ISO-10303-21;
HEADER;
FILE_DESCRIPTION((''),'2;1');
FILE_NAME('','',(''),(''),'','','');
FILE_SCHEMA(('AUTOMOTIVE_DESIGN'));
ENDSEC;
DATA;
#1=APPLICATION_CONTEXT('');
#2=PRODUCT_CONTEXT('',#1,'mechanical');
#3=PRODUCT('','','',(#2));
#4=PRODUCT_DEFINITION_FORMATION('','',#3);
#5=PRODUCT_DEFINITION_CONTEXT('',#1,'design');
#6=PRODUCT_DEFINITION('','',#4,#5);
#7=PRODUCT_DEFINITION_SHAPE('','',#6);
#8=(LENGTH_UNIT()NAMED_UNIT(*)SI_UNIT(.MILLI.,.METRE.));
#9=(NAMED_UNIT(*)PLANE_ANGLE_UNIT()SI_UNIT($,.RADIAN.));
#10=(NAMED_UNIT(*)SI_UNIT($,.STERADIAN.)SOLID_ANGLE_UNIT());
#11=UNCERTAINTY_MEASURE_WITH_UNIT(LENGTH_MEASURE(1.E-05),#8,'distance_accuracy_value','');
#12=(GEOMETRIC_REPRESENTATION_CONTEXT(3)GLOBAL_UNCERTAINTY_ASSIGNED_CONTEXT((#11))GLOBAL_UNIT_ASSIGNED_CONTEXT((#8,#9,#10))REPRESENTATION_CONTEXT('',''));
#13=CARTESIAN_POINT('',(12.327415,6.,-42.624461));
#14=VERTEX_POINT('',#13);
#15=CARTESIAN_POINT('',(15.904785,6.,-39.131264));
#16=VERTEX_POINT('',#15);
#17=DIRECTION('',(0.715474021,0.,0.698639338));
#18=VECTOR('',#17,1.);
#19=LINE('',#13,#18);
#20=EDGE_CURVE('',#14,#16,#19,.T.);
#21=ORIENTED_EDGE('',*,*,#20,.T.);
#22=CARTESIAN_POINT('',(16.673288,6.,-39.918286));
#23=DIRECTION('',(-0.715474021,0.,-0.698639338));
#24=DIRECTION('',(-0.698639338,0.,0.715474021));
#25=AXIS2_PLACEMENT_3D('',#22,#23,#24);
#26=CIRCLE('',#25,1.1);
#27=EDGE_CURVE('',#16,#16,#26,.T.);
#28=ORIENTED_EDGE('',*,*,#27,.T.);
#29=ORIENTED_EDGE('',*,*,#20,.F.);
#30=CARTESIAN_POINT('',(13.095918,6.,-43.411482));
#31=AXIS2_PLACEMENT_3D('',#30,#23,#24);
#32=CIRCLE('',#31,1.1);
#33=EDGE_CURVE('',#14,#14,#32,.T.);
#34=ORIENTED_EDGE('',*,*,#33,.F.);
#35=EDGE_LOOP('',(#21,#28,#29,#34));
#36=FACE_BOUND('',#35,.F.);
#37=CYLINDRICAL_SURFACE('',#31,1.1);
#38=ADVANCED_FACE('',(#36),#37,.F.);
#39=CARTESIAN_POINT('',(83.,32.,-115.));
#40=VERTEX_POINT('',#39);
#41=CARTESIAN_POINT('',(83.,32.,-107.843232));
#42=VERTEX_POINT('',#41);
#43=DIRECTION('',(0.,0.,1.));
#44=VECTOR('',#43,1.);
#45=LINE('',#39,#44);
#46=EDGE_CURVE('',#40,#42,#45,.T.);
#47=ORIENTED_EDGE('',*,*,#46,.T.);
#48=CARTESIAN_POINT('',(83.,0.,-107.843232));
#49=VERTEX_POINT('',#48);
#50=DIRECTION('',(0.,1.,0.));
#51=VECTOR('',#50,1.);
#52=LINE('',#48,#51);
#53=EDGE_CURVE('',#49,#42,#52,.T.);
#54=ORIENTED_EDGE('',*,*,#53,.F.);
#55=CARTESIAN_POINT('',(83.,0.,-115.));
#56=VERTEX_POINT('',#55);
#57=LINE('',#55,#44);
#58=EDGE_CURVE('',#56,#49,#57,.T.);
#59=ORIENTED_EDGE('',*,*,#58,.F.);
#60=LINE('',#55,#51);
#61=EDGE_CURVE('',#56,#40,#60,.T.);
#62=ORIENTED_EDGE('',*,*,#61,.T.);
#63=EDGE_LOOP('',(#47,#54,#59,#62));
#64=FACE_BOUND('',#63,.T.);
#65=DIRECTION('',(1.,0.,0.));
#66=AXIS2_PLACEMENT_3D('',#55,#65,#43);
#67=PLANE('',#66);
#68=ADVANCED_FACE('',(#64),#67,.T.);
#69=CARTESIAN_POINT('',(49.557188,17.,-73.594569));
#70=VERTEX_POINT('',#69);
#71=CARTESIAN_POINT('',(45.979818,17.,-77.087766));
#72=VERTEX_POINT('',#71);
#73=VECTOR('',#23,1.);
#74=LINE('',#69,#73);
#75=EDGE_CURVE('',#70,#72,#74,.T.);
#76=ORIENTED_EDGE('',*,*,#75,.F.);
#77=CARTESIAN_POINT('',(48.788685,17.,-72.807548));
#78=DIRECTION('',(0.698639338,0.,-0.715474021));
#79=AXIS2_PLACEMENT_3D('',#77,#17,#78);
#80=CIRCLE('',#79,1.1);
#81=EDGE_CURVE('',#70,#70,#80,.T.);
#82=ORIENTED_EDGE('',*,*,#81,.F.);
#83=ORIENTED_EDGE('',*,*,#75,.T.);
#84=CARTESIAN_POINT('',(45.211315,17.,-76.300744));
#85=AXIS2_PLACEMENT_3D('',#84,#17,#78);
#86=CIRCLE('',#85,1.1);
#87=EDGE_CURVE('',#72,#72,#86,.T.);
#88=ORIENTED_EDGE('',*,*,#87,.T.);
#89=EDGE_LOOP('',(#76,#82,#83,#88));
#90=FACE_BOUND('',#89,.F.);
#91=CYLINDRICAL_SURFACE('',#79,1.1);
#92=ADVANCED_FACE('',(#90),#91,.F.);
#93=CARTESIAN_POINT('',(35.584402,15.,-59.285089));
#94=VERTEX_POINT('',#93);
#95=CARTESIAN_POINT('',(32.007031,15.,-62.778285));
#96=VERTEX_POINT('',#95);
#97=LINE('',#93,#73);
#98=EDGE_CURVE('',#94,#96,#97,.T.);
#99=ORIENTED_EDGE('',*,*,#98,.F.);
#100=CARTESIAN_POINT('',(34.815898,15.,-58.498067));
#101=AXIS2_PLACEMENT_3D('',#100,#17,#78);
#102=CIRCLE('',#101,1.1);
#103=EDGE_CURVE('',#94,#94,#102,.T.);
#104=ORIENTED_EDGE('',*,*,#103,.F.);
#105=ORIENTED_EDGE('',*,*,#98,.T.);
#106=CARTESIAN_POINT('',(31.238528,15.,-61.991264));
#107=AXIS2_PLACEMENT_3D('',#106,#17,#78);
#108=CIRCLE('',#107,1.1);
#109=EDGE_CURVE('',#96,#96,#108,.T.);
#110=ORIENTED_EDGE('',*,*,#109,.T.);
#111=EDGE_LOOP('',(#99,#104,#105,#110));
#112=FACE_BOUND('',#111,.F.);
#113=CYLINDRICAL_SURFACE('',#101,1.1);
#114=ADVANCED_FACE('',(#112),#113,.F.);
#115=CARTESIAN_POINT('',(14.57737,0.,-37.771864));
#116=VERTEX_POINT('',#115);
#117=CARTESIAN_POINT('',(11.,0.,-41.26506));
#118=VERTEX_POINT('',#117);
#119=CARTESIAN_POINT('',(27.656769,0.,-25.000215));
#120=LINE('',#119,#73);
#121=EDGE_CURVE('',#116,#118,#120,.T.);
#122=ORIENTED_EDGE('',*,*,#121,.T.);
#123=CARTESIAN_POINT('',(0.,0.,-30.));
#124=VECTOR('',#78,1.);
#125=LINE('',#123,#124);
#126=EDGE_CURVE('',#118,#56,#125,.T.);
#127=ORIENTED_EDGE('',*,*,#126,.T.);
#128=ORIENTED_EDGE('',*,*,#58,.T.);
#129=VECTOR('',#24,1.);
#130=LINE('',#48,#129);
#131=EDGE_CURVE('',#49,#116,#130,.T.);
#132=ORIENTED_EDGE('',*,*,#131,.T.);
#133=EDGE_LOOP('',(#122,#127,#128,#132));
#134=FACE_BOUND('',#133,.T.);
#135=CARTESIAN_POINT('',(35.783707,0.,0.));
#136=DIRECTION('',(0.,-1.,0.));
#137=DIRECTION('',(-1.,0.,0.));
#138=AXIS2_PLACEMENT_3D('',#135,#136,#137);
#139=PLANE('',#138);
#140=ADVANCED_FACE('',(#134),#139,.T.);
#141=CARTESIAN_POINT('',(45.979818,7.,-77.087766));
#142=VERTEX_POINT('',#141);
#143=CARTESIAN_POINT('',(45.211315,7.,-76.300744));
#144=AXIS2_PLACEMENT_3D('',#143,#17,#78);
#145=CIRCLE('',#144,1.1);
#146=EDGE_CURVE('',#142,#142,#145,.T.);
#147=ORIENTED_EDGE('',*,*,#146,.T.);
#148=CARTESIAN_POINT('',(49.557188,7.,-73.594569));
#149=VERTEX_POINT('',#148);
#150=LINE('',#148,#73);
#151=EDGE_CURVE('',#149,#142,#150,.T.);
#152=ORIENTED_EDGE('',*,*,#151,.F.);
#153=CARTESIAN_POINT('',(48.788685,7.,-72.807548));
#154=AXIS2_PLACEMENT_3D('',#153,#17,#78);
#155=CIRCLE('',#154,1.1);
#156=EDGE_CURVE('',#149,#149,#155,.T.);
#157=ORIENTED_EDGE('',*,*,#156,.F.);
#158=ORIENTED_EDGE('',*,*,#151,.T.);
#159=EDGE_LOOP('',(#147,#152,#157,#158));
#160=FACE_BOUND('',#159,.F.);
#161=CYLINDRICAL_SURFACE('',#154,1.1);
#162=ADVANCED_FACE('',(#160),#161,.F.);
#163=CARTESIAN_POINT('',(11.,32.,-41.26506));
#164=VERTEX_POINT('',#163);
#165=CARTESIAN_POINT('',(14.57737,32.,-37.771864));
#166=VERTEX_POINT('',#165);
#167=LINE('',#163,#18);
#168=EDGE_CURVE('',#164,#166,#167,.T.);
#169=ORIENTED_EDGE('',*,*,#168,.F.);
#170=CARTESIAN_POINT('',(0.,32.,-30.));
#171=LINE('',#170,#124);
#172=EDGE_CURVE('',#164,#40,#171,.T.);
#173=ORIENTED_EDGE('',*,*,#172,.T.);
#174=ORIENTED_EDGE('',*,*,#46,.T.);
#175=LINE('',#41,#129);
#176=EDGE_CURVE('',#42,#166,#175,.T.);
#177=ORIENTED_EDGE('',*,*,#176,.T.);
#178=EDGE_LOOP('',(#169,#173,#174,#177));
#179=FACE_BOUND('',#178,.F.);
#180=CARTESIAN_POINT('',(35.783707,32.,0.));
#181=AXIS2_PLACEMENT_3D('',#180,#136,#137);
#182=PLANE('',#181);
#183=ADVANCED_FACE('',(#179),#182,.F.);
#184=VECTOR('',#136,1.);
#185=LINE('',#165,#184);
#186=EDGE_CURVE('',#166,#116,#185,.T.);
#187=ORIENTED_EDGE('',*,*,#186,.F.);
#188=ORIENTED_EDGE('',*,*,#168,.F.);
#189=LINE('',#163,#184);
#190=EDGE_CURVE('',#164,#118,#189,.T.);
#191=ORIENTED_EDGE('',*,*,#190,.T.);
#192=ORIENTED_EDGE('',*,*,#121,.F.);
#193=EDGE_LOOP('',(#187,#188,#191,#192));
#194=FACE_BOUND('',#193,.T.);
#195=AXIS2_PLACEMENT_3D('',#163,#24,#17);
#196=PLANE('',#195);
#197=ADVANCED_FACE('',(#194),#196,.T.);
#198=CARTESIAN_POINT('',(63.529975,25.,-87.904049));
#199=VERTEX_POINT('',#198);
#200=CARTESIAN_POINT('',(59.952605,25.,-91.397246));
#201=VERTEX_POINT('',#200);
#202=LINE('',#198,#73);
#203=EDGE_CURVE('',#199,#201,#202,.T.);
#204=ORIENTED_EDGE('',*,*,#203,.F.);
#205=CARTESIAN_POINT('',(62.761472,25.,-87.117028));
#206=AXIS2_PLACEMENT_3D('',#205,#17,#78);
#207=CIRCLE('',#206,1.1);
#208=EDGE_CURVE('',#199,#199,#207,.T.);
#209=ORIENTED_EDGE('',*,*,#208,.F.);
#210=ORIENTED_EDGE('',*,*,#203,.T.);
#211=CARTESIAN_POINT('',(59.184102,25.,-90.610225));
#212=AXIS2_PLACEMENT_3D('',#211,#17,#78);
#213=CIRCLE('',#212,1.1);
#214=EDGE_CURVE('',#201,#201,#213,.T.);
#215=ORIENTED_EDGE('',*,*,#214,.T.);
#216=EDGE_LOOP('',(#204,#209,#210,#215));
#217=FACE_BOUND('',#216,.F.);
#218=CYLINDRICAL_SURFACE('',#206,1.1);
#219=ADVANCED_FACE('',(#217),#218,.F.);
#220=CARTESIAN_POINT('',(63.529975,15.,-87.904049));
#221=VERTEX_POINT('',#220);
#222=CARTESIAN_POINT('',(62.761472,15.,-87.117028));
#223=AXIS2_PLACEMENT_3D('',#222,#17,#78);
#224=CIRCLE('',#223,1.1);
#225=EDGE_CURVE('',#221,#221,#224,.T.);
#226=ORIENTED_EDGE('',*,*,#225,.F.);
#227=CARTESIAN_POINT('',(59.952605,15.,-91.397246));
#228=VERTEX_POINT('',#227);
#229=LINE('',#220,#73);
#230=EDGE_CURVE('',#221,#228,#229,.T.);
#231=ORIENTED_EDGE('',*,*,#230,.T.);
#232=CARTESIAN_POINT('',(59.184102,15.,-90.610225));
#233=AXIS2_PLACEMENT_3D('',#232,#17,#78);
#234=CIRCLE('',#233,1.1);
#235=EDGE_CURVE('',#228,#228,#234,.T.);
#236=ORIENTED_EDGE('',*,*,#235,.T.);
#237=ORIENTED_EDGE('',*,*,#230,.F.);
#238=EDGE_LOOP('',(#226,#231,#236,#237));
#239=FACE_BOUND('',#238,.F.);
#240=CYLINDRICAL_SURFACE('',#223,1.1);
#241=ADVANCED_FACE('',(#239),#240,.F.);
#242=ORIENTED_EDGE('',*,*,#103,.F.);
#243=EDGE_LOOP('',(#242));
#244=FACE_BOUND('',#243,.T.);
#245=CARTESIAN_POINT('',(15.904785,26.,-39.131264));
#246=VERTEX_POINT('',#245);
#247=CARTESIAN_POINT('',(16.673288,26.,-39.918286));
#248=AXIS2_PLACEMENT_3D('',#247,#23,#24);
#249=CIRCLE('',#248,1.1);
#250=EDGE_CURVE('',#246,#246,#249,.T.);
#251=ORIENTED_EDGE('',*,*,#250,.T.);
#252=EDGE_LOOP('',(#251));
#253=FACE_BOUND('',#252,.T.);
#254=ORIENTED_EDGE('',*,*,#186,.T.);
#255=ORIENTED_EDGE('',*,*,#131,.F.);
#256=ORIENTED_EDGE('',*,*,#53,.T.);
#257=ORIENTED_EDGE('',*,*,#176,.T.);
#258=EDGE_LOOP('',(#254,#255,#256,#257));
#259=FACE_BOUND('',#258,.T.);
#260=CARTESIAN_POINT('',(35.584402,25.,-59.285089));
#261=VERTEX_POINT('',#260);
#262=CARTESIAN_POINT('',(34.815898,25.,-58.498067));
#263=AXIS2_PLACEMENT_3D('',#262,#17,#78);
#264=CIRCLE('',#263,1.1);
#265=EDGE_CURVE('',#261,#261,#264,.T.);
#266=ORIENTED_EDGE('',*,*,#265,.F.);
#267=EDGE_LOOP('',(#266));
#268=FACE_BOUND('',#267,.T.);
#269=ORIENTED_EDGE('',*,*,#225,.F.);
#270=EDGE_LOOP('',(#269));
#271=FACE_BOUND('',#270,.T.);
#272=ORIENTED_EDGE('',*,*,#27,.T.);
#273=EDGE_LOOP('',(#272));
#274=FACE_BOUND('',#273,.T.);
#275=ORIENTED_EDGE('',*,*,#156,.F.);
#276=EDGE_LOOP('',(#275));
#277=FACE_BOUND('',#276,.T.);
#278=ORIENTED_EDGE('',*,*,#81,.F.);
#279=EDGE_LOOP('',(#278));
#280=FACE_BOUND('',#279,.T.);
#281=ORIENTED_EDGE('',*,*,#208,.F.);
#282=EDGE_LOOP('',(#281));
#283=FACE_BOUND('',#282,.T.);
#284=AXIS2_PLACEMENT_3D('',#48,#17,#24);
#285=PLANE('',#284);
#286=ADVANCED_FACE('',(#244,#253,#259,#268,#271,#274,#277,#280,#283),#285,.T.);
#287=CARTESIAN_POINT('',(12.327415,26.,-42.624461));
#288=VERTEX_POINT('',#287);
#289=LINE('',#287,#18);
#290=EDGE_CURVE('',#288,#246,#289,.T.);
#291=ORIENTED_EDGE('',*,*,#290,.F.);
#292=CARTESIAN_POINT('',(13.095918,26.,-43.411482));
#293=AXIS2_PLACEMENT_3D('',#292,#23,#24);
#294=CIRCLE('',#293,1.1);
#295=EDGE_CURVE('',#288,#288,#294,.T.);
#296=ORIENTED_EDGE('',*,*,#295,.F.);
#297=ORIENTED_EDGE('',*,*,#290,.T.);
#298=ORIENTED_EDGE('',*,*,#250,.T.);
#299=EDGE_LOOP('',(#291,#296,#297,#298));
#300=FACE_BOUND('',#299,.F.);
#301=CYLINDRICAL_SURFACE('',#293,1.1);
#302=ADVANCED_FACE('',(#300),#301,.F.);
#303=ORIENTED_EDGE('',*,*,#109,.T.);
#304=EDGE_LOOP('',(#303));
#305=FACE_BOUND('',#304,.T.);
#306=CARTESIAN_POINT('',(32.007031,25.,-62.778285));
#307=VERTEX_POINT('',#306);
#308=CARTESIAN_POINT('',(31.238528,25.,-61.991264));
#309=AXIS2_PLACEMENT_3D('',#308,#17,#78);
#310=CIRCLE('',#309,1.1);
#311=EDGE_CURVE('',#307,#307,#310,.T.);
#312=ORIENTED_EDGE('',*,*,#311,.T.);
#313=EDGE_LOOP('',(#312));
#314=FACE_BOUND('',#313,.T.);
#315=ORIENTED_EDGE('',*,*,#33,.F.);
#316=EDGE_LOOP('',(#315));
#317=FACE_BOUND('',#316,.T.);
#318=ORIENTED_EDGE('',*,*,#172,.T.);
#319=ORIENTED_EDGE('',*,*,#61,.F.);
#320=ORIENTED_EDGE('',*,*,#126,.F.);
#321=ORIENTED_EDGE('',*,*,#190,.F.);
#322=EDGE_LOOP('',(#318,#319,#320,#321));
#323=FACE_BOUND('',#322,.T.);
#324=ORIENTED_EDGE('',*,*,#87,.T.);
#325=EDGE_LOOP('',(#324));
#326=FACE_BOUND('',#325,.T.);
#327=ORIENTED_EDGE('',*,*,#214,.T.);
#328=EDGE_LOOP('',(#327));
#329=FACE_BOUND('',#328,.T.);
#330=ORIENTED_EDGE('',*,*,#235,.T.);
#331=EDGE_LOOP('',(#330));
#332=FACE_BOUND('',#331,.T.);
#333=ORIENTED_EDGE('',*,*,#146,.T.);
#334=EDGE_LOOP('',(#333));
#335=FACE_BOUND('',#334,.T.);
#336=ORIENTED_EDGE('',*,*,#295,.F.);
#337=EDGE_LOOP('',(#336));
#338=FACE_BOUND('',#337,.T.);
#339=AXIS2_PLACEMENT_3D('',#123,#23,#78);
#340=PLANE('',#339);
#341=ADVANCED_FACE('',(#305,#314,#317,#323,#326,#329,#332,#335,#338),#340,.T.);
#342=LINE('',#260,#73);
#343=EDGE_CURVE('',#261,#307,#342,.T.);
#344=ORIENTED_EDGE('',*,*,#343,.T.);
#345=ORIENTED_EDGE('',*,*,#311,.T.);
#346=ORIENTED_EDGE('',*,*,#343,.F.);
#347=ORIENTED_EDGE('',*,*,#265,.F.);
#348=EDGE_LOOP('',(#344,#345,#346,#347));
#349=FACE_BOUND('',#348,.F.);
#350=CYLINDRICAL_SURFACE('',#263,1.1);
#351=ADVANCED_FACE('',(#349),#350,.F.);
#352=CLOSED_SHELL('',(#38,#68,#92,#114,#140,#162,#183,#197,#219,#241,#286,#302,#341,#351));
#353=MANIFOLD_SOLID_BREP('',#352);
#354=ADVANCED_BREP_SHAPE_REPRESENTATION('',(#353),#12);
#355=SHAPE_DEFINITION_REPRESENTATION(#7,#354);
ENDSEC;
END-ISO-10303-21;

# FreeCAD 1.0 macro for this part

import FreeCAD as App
import Part
import Sketcher


def edges_at(feature, points):
    """Names of the edges that pass closest to the given points."""
    edges = feature.Shape.Edges
    near = lambda p: min(range(len(edges)), key=lambda i: edges[i].distToShape(Part.Vertex(*p))[0])
    return sorted({f"Edge{near(p) + 1}" for p in points})


def add_polygon(sketch, points):
    """Adds a closed chain of lines whose ends are joined by coincident constraints."""
    first, n = sketch.GeometryCount, len(points)
    for a, b in zip(points, points[1:] + points[:1]):
        sketch.addGeometry(Part.LineSegment(App.Vector(*a, 0), App.Vector(*b, 0)), False)
    for i in range(n):
        sketch.addConstraint(Sketcher.Constraint("Coincident", first + i, 2, first + (i + 1) % n, 1))

doc = App.newDocument("Part")
body = doc.addObject("PartDesign::Body", "Body")

# Sketch on XZ plane
sketch1 = body.newObject("Sketcher::SketchObject", "Sketch")
sketch1.AttachmentSupport = (doc.getObject("XZ_Plane"), [""])
sketch1.MapMode = "FlatFace"
add_polygon(sketch1, [(0, -30), (0, 30), (83, 115), (83, 108), (5, 28), (5, -28), (83, -108), (83, -115)])  # lines 0-7
sketch1.addConstraint([
    Sketcher.Constraint("Vertical", 0),
    Sketcher.Constraint("Vertical", 2),
    Sketcher.Constraint("Vertical", 4),
    Sketcher.Constraint("Vertical", 6),
    Sketcher.Constraint("Symmetric", 0, 2, 7, 2, -1, 1),
    Sketcher.Constraint("Symmetric", 2, 2, 5, 2, -1),
    Sketcher.Constraint("Parallel", 1, 3),
    Sketcher.Constraint("Parallel", 5, 7),
    Sketcher.Constraint("Equal", 2, 6),
    Sketcher.Constraint("DistanceY", 0, 1, 0, 2, 60.0),
    Sketcher.Constraint("DistanceX", -1, 1, 1, 2, 83.0),
    Sketcher.Constraint("DistanceY", -1, 1, 1, 2, 115.0),
    Sketcher.Constraint("DistanceX", -1, 1, 3, 2, 5.0),
    Sketcher.Constraint("DistanceY", 2, 2, 2, 1, 7.156768),
])
pad1 = body.newObject("PartDesign::Pad", "Pad")
pad1.Profile = sketch1
pad1.Length = 32
pad1.Reversed = True
doc.recompute()

fillet = body.newObject("PartDesign::Fillet", "Fillet")
fillet.Base = (pad1, edges_at(pad1, [(0, 16, 30), (0, 16, -30)]))
fillet.Radius = 10

# Sketch on XZ plane
sketch2 = body.newObject("Sketcher::SketchObject", "Sketch001")
sketch2.AttachmentSupport = (doc.getObject("XZ_Plane"), [""])
sketch2.MapMode = "FlatFace"
sketch2.AttachmentOffset = App.Placement(App.Vector(0, 0, -32), App.Rotation())
add_polygon(sketch2, [(-49, -125), (-49, 133), (121, 133), (121, -125)])  # lines 0-3
add_polygon(sketch2, [(84, -116), (88, -113), (15, -38), (11, -41)])  # lines 4-7
sketch2.addConstraint([
    Sketcher.Constraint("Vertical", 0),
    Sketcher.Constraint("Horizontal", 1),
    Sketcher.Constraint("Vertical", 2),
    Sketcher.Constraint("Horizontal", 3),
    Sketcher.Constraint("Perpendicular", 4, 5),
    Sketcher.Constraint("Perpendicular", 5, 6),
    Sketcher.Constraint("Perpendicular", 6, 7),
    Sketcher.Constraint("Distance", 4, 5.0),
    Sketcher.Constraint("DistanceX", -1, 1, 6, 2, 11.0),
    Sketcher.Constraint("DistanceX", -1, 1, 7, 2, 84.0),
    Sketcher.Constraint("DistanceX", 1, 1, 1, 2, 170.11041),
    Sketcher.Constraint("DistanceY", 4, 2, -1, 1, 112.5309),
    Sketcher.Constraint("Distance", 5, 104.48882),
    Sketcher.Constraint("DistanceY", 0, 1, 0, 2, 258.008077),
    Sketcher.Constraint("DistanceY", -1, 1, 0, 2, 133.05101),
    Sketcher.Constraint("DistanceX", 0, 2, -1, 1, 49.419985),
])
pocket1 = body.newObject("PartDesign::Pocket", "Pocket")
pocket1.Profile = sketch2
pocket1.Type = "ThroughAll"
pocket1.Reversed = True

# Sketch on an angled plane
sketch3 = body.newObject("Sketcher::SketchObject", "Sketch002")
sketch3.Placement = App.Placement(App.Vector(-14.995749, 0, -14.642908), App.Rotation(App.Vector(-0.698639338, 0, 0.715474021), App.Vector(0, 0.999999999, 0), App.Vector(-0.715474021, 0, -0.698639338), "ZXY"))
sketch3.addGeometry([
    Part.Circle(App.Vector(-40.2, 26, 0), App.Vector(0, 0, 1), 1.1),
    Part.Circle(App.Vector(-40.2, 6, 0), App.Vector(0, 0, 1), 1.1),
], False)
sketch3.addConstraint([
    Sketcher.Constraint("Equal", 0, 1),
    Sketcher.Constraint("Vertical", 0, 3, 1, 3),
    Sketcher.Constraint("Diameter", 0, 2.2),
    Sketcher.Constraint("DistanceY", -1, 1, 0, 3, 26.0),
    Sketcher.Constraint("DistanceY", -1, 1, 1, 3, 6.0),
    Sketcher.Constraint("DistanceX", 0, 3, -1, 1, 40.209111),
])
pocket2 = body.newObject("PartDesign::Pocket", "Pocket001")
pocket2.Profile = sketch3
pocket2.Type = "ThroughAll"

# Sketch on an angled plane
sketch4 = body.newObject("Sketcher::SketchObject", "Sketch003")
sketch4.Placement = App.Placement(App.Vector(-11.418379, 0, -11.149711), App.Rotation(App.Vector(0.698639338, 0, -0.715474021), App.Vector(0, 0.999999999, 0), App.Vector(0.715474021, 0, 0.698639338), "ZXY"))
sketch4.addGeometry([
    Part.Circle(App.Vector(66.2, 15, 0), App.Vector(0, 0, 1), 1.1),  # 0
    Part.Circle(App.Vector(66.2, 25, 0), App.Vector(0, 0, 1), 1.1),  # 1
    Part.Circle(App.Vector(106.2, 25, 0), App.Vector(0, 0, 1), 1.1),  # 2
    Part.Circle(App.Vector(106.2, 15, 0), App.Vector(0, 0, 1), 1.1),  # 3
    Part.Circle(App.Vector(86.2, 17, 0), App.Vector(0, 0, 1), 1.1),  # 4
    Part.Circle(App.Vector(86.2, 7, 0), App.Vector(0, 0, 1), 1.1),  # 5
], False)
sketch4.addConstraint([
    Sketcher.Constraint("Equal", 0, 1),
    Sketcher.Constraint("Equal", 1, 2),
    Sketcher.Constraint("Equal", 2, 3),
    Sketcher.Constraint("Equal", 3, 4),
    Sketcher.Constraint("Equal", 4, 5),
    Sketcher.Constraint("Horizontal", 1, 3, 2, 3),
    Sketcher.Constraint("Horizontal", 0, 3, 3, 3),
    Sketcher.Constraint("Vertical", 0, 3, 1, 3),
    Sketcher.Constraint("Vertical", 2, 3, 3, 3),
    Sketcher.Constraint("Vertical", 4, 3, 5, 3),
    Sketcher.Constraint("Diameter", 0, 2.2),
    Sketcher.Constraint("DistanceY", -1, 1, 0, 3, 15.0),
    Sketcher.Constraint("DistanceY", -1, 1, 1, 3, 25.0),
    Sketcher.Constraint("DistanceY", -1, 1, 4, 3, 17.0),
    Sketcher.Constraint("DistanceY", -1, 1, 5, 3, 7.0),
    Sketcher.Constraint("DistanceX", 1, 3, 2, 3, 40.0),
    Sketcher.Constraint("DistanceX", 0, 3, 4, 3, 20.0),
    Sketcher.Constraint("DistanceX", -1, 1, 0, 3, 66.177603),
])
pocket3 = body.newObject("PartDesign::Pocket", "Pocket002")
pocket3.Profile = sketch4
pocket3.Type = "ThroughAll"

doc.recompute()
